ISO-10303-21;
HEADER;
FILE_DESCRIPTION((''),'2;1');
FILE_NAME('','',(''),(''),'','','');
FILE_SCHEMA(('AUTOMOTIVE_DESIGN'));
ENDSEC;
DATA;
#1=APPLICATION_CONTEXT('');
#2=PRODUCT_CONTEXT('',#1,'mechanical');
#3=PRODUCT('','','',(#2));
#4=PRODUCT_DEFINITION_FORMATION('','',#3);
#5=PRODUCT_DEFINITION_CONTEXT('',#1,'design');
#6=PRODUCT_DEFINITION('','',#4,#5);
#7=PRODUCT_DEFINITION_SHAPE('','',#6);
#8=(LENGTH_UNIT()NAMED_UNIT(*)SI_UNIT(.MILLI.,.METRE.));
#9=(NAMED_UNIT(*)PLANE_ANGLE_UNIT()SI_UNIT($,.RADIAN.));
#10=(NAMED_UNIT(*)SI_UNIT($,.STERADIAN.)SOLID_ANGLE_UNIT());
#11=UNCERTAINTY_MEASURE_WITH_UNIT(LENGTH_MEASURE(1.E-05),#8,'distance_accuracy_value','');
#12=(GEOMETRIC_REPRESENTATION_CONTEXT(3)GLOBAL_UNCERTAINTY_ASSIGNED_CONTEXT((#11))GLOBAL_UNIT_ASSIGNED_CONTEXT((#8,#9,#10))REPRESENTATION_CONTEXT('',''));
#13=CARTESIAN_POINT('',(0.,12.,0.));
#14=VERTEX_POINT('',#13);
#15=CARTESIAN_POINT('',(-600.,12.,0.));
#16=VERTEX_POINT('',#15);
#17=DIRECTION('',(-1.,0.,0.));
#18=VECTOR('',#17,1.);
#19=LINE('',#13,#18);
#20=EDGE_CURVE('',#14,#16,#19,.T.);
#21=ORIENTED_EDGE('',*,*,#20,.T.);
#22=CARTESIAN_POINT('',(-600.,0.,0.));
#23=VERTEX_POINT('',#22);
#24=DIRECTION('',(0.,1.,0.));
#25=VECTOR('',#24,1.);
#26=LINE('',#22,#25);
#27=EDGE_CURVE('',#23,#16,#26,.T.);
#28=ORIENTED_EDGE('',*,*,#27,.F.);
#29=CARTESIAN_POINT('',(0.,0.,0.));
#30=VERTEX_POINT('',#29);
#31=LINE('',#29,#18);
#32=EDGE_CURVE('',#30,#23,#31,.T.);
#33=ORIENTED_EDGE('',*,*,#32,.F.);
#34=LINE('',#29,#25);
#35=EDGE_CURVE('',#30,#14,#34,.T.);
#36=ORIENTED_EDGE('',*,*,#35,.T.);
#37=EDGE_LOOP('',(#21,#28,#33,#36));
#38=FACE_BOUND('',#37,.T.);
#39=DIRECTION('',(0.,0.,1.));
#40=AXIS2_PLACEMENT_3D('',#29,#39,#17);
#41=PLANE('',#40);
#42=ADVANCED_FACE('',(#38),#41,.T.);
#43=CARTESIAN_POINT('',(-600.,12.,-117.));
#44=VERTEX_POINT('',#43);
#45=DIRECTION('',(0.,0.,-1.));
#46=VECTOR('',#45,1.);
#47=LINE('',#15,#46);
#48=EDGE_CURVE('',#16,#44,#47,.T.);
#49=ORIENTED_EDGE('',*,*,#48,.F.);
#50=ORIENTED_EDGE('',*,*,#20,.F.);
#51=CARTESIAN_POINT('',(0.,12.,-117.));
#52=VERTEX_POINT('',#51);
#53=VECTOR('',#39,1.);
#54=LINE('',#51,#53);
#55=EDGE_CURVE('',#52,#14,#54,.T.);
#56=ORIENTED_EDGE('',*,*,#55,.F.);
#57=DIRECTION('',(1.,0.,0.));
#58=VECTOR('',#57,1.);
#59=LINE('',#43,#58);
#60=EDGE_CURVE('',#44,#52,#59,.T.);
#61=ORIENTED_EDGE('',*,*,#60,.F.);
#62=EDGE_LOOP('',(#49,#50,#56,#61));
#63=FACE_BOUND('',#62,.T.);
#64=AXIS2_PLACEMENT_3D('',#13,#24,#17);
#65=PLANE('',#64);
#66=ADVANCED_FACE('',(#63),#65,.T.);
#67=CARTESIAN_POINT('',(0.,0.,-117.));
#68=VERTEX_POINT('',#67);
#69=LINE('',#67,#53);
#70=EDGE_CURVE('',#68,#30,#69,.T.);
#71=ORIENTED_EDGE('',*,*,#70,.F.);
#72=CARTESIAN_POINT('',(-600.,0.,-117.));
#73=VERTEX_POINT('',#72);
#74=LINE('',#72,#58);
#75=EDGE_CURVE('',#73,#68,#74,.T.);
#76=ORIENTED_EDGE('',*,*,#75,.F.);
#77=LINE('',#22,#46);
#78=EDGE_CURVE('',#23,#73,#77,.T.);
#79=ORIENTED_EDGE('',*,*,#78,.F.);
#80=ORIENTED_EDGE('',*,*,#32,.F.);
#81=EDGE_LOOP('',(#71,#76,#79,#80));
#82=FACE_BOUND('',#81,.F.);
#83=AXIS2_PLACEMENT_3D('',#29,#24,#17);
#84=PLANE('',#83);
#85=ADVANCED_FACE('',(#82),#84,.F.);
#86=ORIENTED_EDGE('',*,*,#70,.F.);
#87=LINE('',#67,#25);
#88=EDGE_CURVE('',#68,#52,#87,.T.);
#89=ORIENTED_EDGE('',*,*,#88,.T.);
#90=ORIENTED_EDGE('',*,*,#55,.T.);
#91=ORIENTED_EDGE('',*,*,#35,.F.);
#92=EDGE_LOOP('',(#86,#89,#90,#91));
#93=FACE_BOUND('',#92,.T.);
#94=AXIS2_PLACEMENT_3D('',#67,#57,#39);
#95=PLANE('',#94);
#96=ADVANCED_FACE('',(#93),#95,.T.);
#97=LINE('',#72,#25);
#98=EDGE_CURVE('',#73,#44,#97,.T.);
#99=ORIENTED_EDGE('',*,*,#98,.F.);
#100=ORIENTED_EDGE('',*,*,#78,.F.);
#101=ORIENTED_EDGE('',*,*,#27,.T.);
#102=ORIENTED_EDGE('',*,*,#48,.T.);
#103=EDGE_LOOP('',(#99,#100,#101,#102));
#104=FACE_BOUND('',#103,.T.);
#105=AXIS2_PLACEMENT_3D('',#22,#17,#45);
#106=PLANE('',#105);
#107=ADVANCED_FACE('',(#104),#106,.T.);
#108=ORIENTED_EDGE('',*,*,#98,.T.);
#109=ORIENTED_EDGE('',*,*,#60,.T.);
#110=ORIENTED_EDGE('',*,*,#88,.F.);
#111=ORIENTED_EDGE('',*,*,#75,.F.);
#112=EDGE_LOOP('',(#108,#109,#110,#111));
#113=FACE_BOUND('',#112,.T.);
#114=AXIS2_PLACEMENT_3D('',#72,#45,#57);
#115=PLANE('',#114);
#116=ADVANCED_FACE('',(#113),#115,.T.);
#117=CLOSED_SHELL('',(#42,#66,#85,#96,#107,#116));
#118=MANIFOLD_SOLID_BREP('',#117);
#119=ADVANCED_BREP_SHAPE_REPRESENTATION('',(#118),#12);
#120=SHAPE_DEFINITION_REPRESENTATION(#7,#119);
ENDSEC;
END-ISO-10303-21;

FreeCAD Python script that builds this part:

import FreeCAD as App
import Part
import Sketcher

V = App.Vector
Q = App.Units.Quantity


def add_polygon(sketch, points):
    """Adds a closed chain of lines whose ends are joined by coincident constraints."""
    first, n = sketch.GeometryCount, len(points)
    for a, b in zip(points, points[1:] + points[:1]):
        sketch.addGeometry(Part.LineSegment(App.Vector(*a, 0), App.Vector(*b, 0)), False)
    for i in range(n):
        sketch.addConstraint(Sketcher.Constraint("Coincident", first + i, 2, first + (i + 1) % n, 1))

doc = App.newDocument("Part")
body = doc.addObject("PartDesign::Body", "Body")

sketch1 = body.newObject("Sketcher::SketchObject", "Sketch")
sketch1.AttachmentSupport = (doc.getObject("XZ_Plane"), [""])
sketch1.MapMode = "FlatFace"
add_polygon(sketch1, [(-600, 0), (0, 0), (0, -117), (-600, -117)])
sketch1.addConstraint([
    Sketcher.Constraint("Horizontal", 0),
    Sketcher.Constraint("Vertical", 1),
    Sketcher.Constraint("Horizontal", 2),
    Sketcher.Constraint("Vertical", 3),
    Sketcher.Constraint("Coincident", 0, 2, -1, 1),
    Sketcher.Constraint("DistanceX", 0, 1, 0, 2, Q("600 mm")),
    Sketcher.Constraint("DistanceY", 1, 2, 1, 1, Q("117 mm")),
])
pad1 = body.newObject("PartDesign::Pad", "Pad")
pad1.Profile = sketch1
pad1.Length = 12
pad1.Reversed = True

doc.recompute()
